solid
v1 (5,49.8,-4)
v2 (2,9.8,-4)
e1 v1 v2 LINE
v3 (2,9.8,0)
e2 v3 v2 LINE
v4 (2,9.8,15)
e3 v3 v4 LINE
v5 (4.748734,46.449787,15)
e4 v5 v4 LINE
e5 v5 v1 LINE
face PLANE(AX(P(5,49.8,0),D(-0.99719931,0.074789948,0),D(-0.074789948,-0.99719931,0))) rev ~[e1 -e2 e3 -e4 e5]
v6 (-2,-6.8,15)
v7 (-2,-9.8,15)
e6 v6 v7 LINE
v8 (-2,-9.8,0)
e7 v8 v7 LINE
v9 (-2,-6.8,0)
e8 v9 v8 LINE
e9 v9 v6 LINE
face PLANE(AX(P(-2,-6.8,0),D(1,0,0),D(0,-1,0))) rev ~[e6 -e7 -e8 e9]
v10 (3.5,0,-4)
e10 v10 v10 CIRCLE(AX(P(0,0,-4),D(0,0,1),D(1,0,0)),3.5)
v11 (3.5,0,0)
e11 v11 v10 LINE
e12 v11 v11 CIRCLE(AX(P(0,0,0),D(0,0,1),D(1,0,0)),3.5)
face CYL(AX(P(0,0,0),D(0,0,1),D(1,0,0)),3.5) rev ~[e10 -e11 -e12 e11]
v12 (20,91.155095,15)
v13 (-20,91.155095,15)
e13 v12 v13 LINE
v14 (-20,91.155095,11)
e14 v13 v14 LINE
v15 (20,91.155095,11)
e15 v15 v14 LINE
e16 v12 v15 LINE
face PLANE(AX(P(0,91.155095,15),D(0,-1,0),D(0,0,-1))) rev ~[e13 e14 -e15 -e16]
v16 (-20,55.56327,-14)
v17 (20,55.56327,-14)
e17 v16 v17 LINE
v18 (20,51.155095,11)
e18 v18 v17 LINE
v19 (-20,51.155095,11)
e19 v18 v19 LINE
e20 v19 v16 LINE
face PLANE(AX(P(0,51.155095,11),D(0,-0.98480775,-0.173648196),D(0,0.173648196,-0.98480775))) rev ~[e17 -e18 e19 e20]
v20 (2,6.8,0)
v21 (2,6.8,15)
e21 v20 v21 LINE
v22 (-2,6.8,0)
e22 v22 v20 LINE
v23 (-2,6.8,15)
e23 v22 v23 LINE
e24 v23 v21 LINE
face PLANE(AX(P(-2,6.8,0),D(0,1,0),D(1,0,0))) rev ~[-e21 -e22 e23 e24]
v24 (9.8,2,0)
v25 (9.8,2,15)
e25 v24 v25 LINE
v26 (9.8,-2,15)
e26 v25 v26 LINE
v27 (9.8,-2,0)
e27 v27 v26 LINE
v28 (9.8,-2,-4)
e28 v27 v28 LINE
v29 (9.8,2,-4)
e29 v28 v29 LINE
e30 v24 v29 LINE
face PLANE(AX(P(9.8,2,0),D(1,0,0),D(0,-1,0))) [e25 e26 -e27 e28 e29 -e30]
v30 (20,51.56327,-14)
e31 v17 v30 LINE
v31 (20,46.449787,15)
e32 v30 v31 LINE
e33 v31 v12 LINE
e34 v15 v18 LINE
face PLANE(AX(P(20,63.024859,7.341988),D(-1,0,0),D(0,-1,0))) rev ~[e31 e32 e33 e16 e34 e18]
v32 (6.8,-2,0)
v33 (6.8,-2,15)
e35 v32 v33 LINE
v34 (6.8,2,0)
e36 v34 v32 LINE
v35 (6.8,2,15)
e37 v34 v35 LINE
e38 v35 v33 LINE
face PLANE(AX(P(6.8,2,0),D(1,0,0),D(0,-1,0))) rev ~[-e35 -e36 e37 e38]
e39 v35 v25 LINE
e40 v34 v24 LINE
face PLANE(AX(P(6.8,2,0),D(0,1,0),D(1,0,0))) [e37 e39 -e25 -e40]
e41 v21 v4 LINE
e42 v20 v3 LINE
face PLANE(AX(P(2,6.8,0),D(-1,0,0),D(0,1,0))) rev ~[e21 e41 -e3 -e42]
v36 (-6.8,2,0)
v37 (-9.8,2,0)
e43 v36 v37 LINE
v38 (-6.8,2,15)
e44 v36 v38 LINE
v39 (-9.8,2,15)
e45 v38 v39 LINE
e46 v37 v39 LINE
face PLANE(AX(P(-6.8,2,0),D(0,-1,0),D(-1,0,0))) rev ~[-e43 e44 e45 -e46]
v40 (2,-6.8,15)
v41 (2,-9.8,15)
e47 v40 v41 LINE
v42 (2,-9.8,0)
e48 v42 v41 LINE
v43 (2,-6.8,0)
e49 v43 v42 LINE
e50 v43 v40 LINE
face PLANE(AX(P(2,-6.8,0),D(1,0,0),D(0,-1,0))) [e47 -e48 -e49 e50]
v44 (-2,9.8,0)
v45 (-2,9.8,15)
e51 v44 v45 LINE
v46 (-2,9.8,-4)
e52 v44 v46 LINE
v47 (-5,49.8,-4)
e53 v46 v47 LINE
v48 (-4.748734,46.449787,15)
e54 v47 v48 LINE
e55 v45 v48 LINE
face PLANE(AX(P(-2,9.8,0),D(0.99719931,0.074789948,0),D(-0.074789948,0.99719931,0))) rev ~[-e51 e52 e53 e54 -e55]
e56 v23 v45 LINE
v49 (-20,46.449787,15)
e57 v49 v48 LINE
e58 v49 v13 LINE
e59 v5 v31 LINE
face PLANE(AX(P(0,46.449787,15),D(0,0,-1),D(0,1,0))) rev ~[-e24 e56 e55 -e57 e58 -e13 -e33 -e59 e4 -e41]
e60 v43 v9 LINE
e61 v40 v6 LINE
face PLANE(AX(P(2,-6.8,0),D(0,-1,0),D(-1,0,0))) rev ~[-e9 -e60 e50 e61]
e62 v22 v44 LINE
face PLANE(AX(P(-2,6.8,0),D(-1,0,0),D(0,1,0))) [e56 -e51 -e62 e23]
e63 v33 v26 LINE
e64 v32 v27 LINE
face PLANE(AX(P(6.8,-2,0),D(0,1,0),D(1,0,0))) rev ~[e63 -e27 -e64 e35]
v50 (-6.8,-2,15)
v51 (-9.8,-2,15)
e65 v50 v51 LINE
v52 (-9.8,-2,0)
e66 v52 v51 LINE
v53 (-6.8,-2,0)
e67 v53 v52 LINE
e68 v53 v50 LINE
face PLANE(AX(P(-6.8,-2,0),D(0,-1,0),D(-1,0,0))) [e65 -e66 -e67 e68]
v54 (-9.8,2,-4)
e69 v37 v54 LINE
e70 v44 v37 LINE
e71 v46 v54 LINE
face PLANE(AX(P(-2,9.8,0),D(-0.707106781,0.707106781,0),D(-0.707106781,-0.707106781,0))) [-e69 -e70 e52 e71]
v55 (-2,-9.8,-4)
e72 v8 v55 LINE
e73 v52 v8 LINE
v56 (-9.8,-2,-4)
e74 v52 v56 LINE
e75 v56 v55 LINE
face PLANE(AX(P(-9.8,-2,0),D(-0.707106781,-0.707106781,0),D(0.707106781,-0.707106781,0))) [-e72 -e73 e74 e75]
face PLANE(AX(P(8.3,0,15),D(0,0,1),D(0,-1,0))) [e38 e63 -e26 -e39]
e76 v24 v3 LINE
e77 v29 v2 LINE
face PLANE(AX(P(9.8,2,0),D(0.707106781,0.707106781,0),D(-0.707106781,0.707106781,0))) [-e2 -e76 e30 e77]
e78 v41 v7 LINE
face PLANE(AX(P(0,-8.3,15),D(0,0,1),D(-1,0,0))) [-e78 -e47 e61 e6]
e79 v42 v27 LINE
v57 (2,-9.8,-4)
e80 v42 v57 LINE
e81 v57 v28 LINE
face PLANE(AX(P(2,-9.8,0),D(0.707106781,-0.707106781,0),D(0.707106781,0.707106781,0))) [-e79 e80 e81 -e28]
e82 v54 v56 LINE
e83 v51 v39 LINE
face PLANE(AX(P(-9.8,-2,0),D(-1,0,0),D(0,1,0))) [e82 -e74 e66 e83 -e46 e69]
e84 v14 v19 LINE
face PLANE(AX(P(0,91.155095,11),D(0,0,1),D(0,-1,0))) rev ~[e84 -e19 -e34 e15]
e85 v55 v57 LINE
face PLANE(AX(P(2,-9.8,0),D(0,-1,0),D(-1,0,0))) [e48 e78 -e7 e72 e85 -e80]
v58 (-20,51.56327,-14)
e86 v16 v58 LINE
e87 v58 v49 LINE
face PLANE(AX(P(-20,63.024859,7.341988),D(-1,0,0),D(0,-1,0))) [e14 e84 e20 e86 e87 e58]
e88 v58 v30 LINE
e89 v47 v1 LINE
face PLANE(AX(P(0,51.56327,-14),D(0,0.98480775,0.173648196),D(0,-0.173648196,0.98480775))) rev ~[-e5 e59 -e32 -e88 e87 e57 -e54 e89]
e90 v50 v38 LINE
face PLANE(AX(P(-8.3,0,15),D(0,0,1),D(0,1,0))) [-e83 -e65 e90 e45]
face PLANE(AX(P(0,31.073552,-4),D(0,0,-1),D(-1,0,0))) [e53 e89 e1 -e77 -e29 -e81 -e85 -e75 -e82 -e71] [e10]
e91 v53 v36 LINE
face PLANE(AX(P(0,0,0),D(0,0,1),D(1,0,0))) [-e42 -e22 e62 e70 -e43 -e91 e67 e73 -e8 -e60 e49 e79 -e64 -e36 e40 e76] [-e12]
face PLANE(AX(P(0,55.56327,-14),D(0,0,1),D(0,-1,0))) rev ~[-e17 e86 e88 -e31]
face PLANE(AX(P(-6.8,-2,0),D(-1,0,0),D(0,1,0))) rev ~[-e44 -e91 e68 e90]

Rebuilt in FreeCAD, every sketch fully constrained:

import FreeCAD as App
import Part
import Sketcher

V = App.Vector
Q = App.Units.Quantity

doc = App.newDocument("Part")
params = doc.addObject("Spreadsheet::Sheet", "Params")
for row, (alias, value) in enumerate([
    ("sketch1_diameter", "7 mm"),
    ("sketch1_width", "4 mm"),
    ("pad1_length", "4 mm"),
    ("sketch2_width", "4 mm"),
    ("sketch2_height", "3 mm"),
    ("pad2_length", "15 mm"),
    ("sketch3_width", "4 mm"),
    ("sketch3_width2", "10 mm"),
    ("pad3_length", "15 mm"),
    ("sketch4_width", "4 mm"),
    ("sketch4_width2", "10 mm"),
    ("pad4_length", "4 mm"),
    ("sketch5_width", "4 mm"),
    ("sketch5_width2", "40 mm"),
    ("pad5_length", "40 mm"),
], start=1):
    params.set(f"A{row}", alias)
    params.set(f"B{row}", "=" + value)
    params.setAlias(f"B{row}", alias)

body = doc.addObject("PartDesign::Body", "Body")

# Sketch on XY plane
sketch1 = body.newObject("Sketcher::SketchObject", "Sketch")
sketch1.AttachmentSupport = (doc.getObject("XY_Plane"), [""])
sketch1.MapMode = "FlatFace"
sketch1.addGeometry(Part.LineSegment(V(-9.8, 2, 0), V(-9.8, -2, 0)), False)
sketch1.addGeometry(Part.LineSegment(V(-9.8, -2, 0), V(-2, -9.8, 0)), False)
sketch1.addGeometry(Part.LineSegment(V(-2, -9.8, 0), V(2, -9.8, 0)), False)
sketch1.addGeometry(Part.LineSegment(V(2, -9.8, 0), V(9.8, -2, 0)), False)
sketch1.addGeometry(Part.LineSegment(V(9.8, -2, 0), V(9.8, 2, 0)), False)
sketch1.addGeometry(Part.LineSegment(V(9.8, 2, 0), V(2, 9.8, 0)), False)
sketch1.addGeometry(Part.LineSegment(V(2, 9.8, 0), V(-2, 9.8, 0)), False)
sketch1.addGeometry(Part.LineSegment(V(-2, 9.8, 0), V(-9.8, 2, 0)), False)
sketch1.addGeometry(Part.Circle(V(0, 0, 0), V(0, 0, 1), 3.5), False)
sketch1.addConstraint(Sketcher.Constraint("Coincident", 0, 2, 1, 1))
sketch1.addConstraint(Sketcher.Constraint("Coincident", 1, 2, 2, 1))
sketch1.addConstraint(Sketcher.Constraint("Coincident", 2, 2, 3, 1))
sketch1.addConstraint(Sketcher.Constraint("Coincident", 3, 2, 4, 1))
sketch1.addConstraint(Sketcher.Constraint("Coincident", 4, 2, 5, 1))
sketch1.addConstraint(Sketcher.Constraint("Coincident", 5, 2, 6, 1))
sketch1.addConstraint(Sketcher.Constraint("Coincident", 6, 2, 7, 1))
sketch1.addConstraint(Sketcher.Constraint("Coincident", 7, 2, 0, 1))
sketch1.addConstraint(Sketcher.Constraint("Vertical", 0))
sketch1.addConstraint(Sketcher.Constraint("Horizontal", 2))
sketch1.addConstraint(Sketcher.Constraint("Vertical", 4))
sketch1.addConstraint(Sketcher.Constraint("Horizontal", 6))
sketch1.addConstraint(Sketcher.Constraint("Coincident", 8, 3, -1, 1))
sketch1.addConstraint(Sketcher.Constraint("Symmetric", 0, 2, 4, 2, -1, 1))
sketch1.addConstraint(Sketcher.Constraint("Symmetric", 1, 2, 5, 2, -1, 1))
sketch1.addConstraint(Sketcher.Constraint("Perpendicular", 1, 3))
sketch1.addConstraint(Sketcher.Constraint("Perpendicular", 5, 7))
sketch1.addConstraint(Sketcher.Constraint("Horizontal", 0, 2, 3, 2))
sketch1.addConstraint(Sketcher.Constraint("Horizontal", 4, 2, 7, 2))
sketch1.addConstraint(Sketcher.Constraint("Vertical", 2, 2, 5, 2))
sketch1.addConstraint(Sketcher.Constraint("Equal", 6, 0))
sketch1.addConstraint(Sketcher.Constraint("Diameter", 8, Q("7 mm")))
sketch1.addConstraint(Sketcher.Constraint("DistanceX", 2, 1, 2, 2, Q("4 mm")))
sketch1.addConstraint(Sketcher.Constraint("DistanceX", 0, 2, -1, 1, Q("9.8 mm")))
sketch1.setExpression("Constraints[21]", "Params.sketch1_diameter")
sketch1.setExpression("Constraints[22]", "Params.sketch1_width")
pad1 = body.newObject("PartDesign::Pad", "Pad")
pad1.Profile = sketch1
pad1.setExpression("Length", "Params.pad1_length")
pad1.Reversed = True

# Sketch on XY plane
sketch2 = body.newObject("Sketcher::SketchObject", "Sketch001")
sketch2.AttachmentSupport = (doc.getObject("XY_Plane"), [""])
sketch2.MapMode = "FlatFace"
sketch2.addGeometry(Part.LineSegment(V(-2, 9.8, 0), V(-2, 6.8, 0)), False)
sketch2.addGeometry(Part.LineSegment(V(-2, 6.8, 0), V(2, 6.8, 0)), False)
sketch2.addGeometry(Part.LineSegment(V(2, 6.8, 0), V(2, 9.8, 0)), False)
sketch2.addGeometry(Part.LineSegment(V(2, 9.8, 0), V(-2, 9.8, 0)), False)
sketch2.addConstraint(Sketcher.Constraint("Coincident", 0, 2, 1, 1))
sketch2.addConstraint(Sketcher.Constraint("Coincident", 1, 2, 2, 1))
sketch2.addConstraint(Sketcher.Constraint("Coincident", 2, 2, 3, 1))
sketch2.addConstraint(Sketcher.Constraint("Coincident", 3, 2, 0, 1))
sketch2.addConstraint(Sketcher.Constraint("Vertical", 0))
sketch2.addConstraint(Sketcher.Constraint("Horizontal", 1))
sketch2.addConstraint(Sketcher.Constraint("Vertical", 2))
sketch2.addConstraint(Sketcher.Constraint("Horizontal", 3))
sketch2.addConstraint(Sketcher.Constraint("DistanceX", 1, 1, 1, 2, Q("4 mm")))
sketch2.addConstraint(Sketcher.Constraint("DistanceY", 0, 2, 0, 1, Q("3 mm")))
sketch2.addConstraint(Sketcher.Constraint("DistanceX", 0, 2, -1, 1, Q("2 mm")))
sketch2.addConstraint(Sketcher.Constraint("DistanceY", -1, 1, 0, 2, Q("6.8 mm")))
sketch2.setExpression("Constraints[8]", "Params.sketch2_width")
sketch2.setExpression("Constraints[9]", "Params.sketch2_height")
pad2 = body.newObject("PartDesign::Pad", "Pad001")
pad2.Profile = sketch2
pad2.setExpression("Length", "Params.pad2_length")
doc.recompute()

polarpattern = body.newObject("PartDesign::PolarPattern", "PolarPattern")
polarpattern.Originals = [pad2]
polarpattern.Axis = (doc.getObject("Z_Axis"), [""])
polarpattern.Angle = 360
polarpattern.Occurrences = 4
body.Tip = polarpattern

# Sketch on XY plane
sketch3 = body.newObject("Sketcher::SketchObject", "Sketch002")
sketch3.AttachmentSupport = (doc.getObject("XY_Plane"), [""])
sketch3.MapMode = "FlatFace"
sketch3.addGeometry(Part.LineSegment(V(-5, 49.8, 0), V(-2, 9.8, 0)), False)
sketch3.addGeometry(Part.LineSegment(V(-2, 9.8, 0), V(2, 9.8, 0)), False)
sketch3.addGeometry(Part.LineSegment(V(2, 9.8, 0), V(5, 49.8, 0)), False)
sketch3.addGeometry(Part.LineSegment(V(5, 49.8, 0), V(-5, 49.8, 0)), False)
sketch3.addConstraint(Sketcher.Constraint("Coincident", 0, 2, 1, 1))
sketch3.addConstraint(Sketcher.Constraint("Coincident", 1, 2, 2, 1))
sketch3.addConstraint(Sketcher.Constraint("Coincident", 2, 2, 3, 1))
sketch3.addConstraint(Sketcher.Constraint("Coincident", 3, 2, 0, 1))
sketch3.addConstraint(Sketcher.Constraint("Horizontal", 1))
sketch3.addConstraint(Sketcher.Constraint("Horizontal", 3))
sketch3.addConstraint(Sketcher.Constraint("Equal", 0, 2))
sketch3.addConstraint(Sketcher.Constraint("DistanceX", 1, 1, 1, 2, Q("4 mm")))
sketch3.addConstraint(Sketcher.Constraint("DistanceX", 3, 2, 3, 1, Q("10 mm")))
sketch3.addConstraint(Sketcher.Constraint("DistanceX", 0, 2, -1, 1, Q("2 mm")))
sketch3.addConstraint(Sketcher.Constraint("DistanceY", 1, 2, 2, 2, Q("40 mm")))
sketch3.addConstraint(Sketcher.Constraint("DistanceY", -1, 1, 0, 2, Q("9.8 mm")))
sketch3.setExpression("Constraints[7]", "Params.sketch3_width")
sketch3.setExpression("Constraints[8]", "Params.sketch3_width2")
pad3 = body.newObject("PartDesign::Pad", "Pad002")
pad3.Profile = sketch3
pad3.setExpression("Length", "Params.pad3_length")

# Sketch on XY plane
sketch4 = body.newObject("Sketcher::SketchObject", "Sketch003")
sketch4.AttachmentSupport = (doc.getObject("XY_Plane"), [""])
sketch4.MapMode = "FlatFace"
sketch4.addGeometry(Part.LineSegment(V(-5, 49.8, 0), V(-2, 9.8, 0)), False)
sketch4.addGeometry(Part.LineSegment(V(-2, 9.8, 0), V(2, 9.8, 0)), False)
sketch4.addGeometry(Part.LineSegment(V(2, 9.8, 0), V(5, 49.8, 0)), False)
sketch4.addGeometry(Part.LineSegment(V(5, 49.8, 0), V(-5, 49.8, 0)), False)
sketch4.addConstraint(Sketcher.Constraint("Coincident", 0, 2, 1, 1))
sketch4.addConstraint(Sketcher.Constraint("Coincident", 1, 2, 2, 1))
sketch4.addConstraint(Sketcher.Constraint("Coincident", 2, 2, 3, 1))
sketch4.addConstraint(Sketcher.Constraint("Coincident", 3, 2, 0, 1))
sketch4.addConstraint(Sketcher.Constraint("Horizontal", 1))
sketch4.addConstraint(Sketcher.Constraint("Horizontal", 3))
sketch4.addConstraint(Sketcher.Constraint("Equal", 0, 2))
sketch4.addConstraint(Sketcher.Constraint("DistanceX", 1, 1, 1, 2, Q("4 mm")))
sketch4.addConstraint(Sketcher.Constraint("DistanceX", 3, 2, 3, 1, Q("10 mm")))
sketch4.addConstraint(Sketcher.Constraint("DistanceX", 0, 2, -1, 1, Q("2 mm")))
sketch4.addConstraint(Sketcher.Constraint("DistanceY", 1, 2, 2, 2, Q("40 mm")))
sketch4.addConstraint(Sketcher.Constraint("DistanceY", -1, 1, 0, 2, Q("9.8 mm")))
sketch4.setExpression("Constraints[7]", "Params.sketch4_width")
sketch4.setExpression("Constraints[8]", "Params.sketch4_width2")
pad4 = body.newObject("PartDesign::Pad", "Pad003")
pad4.Profile = sketch4
pad4.setExpression("Length", "Params.pad4_length")
pad4.Reversed = True

# Sketch on YZ plane
sketch5 = body.newObject("Sketcher::SketchObject", "Sketch004")
sketch5.AttachmentSupport = (doc.getObject("YZ_Plane"), [""])
sketch5.MapMode = "FlatFace"
sketch5.addGeometry(Part.LineSegment(V(91.155095, 15, 0), V(46.449787, 15, 0)), False)
sketch5.addGeometry(Part.LineSegment(V(46.449787, 15, 0), V(51.56327, -14, 0)), False)
sketch5.addGeometry(Part.LineSegment(V(51.56327, -14, 0), V(55.56327, -14, 0)), False)
sketch5.addGeometry(Part.LineSegment(V(55.56327, -14, 0), V(51.155095, 11, 0)), False)
sketch5.addGeometry(Part.LineSegment(V(51.155095, 11, 0), V(91.155095, 11, 0)), False)
sketch5.addGeometry(Part.LineSegment(V(91.155095, 11, 0), V(91.155095, 15, 0)), False)
sketch5.addConstraint(Sketcher.Constraint("Coincident", 0, 2, 1, 1))
sketch5.addConstraint(Sketcher.Constraint("Coincident", 1, 2, 2, 1))
sketch5.addConstraint(Sketcher.Constraint("Coincident", 2, 2, 3, 1))
sketch5.addConstraint(Sketcher.Constraint("Coincident", 3, 2, 4, 1))
sketch5.addConstraint(Sketcher.Constraint("Coincident", 4, 2, 5, 1))
sketch5.addConstraint(Sketcher.Constraint("Coincident", 5, 2, 0, 1))
sketch5.addConstraint(Sketcher.Constraint("Horizontal", 0))
sketch5.addConstraint(Sketcher.Constraint("Horizontal", 2))
sketch5.addConstraint(Sketcher.Constraint("Horizontal", 4))
sketch5.addConstraint(Sketcher.Constraint("Vertical", 5))
sketch5.addConstraint(Sketcher.Constraint("Parallel", 1, 3))
sketch5.addConstraint(Sketcher.Constraint("Equal", 2, 5))
sketch5.addConstraint(Sketcher.Constraint("DistanceX", 2, 1, 2, 2, Q("4 mm")))
sketch5.addConstraint(Sketcher.Constraint("DistanceX", 4, 1, 4, 2, Q("40 mm")))
sketch5.addConstraint(Sketcher.Constraint("Angle", 1, Q("-79.999999 deg")))
sketch5.addConstraint(Sketcher.Constraint("DistanceY", -1, 1, 0, 2, Q("15 mm")))
sketch5.addConstraint(Sketcher.Constraint("DistanceY", 1, 2, -1, 1, Q("14 mm")))
sketch5.addConstraint(Sketcher.Constraint("DistanceX", -1, 1, 1, 2, Q("51.56327 mm")))
sketch5.setExpression("Constraints[12]", "Params.sketch5_width")
sketch5.setExpression("Constraints[13]", "Params.sketch5_width2")
pad5 = body.newObject("PartDesign::Pad", "Pad004")
pad5.Profile = sketch5
pad5.setExpression("Length", "Params.pad5_length")
pad5.Midplane = True

doc.recompute()
